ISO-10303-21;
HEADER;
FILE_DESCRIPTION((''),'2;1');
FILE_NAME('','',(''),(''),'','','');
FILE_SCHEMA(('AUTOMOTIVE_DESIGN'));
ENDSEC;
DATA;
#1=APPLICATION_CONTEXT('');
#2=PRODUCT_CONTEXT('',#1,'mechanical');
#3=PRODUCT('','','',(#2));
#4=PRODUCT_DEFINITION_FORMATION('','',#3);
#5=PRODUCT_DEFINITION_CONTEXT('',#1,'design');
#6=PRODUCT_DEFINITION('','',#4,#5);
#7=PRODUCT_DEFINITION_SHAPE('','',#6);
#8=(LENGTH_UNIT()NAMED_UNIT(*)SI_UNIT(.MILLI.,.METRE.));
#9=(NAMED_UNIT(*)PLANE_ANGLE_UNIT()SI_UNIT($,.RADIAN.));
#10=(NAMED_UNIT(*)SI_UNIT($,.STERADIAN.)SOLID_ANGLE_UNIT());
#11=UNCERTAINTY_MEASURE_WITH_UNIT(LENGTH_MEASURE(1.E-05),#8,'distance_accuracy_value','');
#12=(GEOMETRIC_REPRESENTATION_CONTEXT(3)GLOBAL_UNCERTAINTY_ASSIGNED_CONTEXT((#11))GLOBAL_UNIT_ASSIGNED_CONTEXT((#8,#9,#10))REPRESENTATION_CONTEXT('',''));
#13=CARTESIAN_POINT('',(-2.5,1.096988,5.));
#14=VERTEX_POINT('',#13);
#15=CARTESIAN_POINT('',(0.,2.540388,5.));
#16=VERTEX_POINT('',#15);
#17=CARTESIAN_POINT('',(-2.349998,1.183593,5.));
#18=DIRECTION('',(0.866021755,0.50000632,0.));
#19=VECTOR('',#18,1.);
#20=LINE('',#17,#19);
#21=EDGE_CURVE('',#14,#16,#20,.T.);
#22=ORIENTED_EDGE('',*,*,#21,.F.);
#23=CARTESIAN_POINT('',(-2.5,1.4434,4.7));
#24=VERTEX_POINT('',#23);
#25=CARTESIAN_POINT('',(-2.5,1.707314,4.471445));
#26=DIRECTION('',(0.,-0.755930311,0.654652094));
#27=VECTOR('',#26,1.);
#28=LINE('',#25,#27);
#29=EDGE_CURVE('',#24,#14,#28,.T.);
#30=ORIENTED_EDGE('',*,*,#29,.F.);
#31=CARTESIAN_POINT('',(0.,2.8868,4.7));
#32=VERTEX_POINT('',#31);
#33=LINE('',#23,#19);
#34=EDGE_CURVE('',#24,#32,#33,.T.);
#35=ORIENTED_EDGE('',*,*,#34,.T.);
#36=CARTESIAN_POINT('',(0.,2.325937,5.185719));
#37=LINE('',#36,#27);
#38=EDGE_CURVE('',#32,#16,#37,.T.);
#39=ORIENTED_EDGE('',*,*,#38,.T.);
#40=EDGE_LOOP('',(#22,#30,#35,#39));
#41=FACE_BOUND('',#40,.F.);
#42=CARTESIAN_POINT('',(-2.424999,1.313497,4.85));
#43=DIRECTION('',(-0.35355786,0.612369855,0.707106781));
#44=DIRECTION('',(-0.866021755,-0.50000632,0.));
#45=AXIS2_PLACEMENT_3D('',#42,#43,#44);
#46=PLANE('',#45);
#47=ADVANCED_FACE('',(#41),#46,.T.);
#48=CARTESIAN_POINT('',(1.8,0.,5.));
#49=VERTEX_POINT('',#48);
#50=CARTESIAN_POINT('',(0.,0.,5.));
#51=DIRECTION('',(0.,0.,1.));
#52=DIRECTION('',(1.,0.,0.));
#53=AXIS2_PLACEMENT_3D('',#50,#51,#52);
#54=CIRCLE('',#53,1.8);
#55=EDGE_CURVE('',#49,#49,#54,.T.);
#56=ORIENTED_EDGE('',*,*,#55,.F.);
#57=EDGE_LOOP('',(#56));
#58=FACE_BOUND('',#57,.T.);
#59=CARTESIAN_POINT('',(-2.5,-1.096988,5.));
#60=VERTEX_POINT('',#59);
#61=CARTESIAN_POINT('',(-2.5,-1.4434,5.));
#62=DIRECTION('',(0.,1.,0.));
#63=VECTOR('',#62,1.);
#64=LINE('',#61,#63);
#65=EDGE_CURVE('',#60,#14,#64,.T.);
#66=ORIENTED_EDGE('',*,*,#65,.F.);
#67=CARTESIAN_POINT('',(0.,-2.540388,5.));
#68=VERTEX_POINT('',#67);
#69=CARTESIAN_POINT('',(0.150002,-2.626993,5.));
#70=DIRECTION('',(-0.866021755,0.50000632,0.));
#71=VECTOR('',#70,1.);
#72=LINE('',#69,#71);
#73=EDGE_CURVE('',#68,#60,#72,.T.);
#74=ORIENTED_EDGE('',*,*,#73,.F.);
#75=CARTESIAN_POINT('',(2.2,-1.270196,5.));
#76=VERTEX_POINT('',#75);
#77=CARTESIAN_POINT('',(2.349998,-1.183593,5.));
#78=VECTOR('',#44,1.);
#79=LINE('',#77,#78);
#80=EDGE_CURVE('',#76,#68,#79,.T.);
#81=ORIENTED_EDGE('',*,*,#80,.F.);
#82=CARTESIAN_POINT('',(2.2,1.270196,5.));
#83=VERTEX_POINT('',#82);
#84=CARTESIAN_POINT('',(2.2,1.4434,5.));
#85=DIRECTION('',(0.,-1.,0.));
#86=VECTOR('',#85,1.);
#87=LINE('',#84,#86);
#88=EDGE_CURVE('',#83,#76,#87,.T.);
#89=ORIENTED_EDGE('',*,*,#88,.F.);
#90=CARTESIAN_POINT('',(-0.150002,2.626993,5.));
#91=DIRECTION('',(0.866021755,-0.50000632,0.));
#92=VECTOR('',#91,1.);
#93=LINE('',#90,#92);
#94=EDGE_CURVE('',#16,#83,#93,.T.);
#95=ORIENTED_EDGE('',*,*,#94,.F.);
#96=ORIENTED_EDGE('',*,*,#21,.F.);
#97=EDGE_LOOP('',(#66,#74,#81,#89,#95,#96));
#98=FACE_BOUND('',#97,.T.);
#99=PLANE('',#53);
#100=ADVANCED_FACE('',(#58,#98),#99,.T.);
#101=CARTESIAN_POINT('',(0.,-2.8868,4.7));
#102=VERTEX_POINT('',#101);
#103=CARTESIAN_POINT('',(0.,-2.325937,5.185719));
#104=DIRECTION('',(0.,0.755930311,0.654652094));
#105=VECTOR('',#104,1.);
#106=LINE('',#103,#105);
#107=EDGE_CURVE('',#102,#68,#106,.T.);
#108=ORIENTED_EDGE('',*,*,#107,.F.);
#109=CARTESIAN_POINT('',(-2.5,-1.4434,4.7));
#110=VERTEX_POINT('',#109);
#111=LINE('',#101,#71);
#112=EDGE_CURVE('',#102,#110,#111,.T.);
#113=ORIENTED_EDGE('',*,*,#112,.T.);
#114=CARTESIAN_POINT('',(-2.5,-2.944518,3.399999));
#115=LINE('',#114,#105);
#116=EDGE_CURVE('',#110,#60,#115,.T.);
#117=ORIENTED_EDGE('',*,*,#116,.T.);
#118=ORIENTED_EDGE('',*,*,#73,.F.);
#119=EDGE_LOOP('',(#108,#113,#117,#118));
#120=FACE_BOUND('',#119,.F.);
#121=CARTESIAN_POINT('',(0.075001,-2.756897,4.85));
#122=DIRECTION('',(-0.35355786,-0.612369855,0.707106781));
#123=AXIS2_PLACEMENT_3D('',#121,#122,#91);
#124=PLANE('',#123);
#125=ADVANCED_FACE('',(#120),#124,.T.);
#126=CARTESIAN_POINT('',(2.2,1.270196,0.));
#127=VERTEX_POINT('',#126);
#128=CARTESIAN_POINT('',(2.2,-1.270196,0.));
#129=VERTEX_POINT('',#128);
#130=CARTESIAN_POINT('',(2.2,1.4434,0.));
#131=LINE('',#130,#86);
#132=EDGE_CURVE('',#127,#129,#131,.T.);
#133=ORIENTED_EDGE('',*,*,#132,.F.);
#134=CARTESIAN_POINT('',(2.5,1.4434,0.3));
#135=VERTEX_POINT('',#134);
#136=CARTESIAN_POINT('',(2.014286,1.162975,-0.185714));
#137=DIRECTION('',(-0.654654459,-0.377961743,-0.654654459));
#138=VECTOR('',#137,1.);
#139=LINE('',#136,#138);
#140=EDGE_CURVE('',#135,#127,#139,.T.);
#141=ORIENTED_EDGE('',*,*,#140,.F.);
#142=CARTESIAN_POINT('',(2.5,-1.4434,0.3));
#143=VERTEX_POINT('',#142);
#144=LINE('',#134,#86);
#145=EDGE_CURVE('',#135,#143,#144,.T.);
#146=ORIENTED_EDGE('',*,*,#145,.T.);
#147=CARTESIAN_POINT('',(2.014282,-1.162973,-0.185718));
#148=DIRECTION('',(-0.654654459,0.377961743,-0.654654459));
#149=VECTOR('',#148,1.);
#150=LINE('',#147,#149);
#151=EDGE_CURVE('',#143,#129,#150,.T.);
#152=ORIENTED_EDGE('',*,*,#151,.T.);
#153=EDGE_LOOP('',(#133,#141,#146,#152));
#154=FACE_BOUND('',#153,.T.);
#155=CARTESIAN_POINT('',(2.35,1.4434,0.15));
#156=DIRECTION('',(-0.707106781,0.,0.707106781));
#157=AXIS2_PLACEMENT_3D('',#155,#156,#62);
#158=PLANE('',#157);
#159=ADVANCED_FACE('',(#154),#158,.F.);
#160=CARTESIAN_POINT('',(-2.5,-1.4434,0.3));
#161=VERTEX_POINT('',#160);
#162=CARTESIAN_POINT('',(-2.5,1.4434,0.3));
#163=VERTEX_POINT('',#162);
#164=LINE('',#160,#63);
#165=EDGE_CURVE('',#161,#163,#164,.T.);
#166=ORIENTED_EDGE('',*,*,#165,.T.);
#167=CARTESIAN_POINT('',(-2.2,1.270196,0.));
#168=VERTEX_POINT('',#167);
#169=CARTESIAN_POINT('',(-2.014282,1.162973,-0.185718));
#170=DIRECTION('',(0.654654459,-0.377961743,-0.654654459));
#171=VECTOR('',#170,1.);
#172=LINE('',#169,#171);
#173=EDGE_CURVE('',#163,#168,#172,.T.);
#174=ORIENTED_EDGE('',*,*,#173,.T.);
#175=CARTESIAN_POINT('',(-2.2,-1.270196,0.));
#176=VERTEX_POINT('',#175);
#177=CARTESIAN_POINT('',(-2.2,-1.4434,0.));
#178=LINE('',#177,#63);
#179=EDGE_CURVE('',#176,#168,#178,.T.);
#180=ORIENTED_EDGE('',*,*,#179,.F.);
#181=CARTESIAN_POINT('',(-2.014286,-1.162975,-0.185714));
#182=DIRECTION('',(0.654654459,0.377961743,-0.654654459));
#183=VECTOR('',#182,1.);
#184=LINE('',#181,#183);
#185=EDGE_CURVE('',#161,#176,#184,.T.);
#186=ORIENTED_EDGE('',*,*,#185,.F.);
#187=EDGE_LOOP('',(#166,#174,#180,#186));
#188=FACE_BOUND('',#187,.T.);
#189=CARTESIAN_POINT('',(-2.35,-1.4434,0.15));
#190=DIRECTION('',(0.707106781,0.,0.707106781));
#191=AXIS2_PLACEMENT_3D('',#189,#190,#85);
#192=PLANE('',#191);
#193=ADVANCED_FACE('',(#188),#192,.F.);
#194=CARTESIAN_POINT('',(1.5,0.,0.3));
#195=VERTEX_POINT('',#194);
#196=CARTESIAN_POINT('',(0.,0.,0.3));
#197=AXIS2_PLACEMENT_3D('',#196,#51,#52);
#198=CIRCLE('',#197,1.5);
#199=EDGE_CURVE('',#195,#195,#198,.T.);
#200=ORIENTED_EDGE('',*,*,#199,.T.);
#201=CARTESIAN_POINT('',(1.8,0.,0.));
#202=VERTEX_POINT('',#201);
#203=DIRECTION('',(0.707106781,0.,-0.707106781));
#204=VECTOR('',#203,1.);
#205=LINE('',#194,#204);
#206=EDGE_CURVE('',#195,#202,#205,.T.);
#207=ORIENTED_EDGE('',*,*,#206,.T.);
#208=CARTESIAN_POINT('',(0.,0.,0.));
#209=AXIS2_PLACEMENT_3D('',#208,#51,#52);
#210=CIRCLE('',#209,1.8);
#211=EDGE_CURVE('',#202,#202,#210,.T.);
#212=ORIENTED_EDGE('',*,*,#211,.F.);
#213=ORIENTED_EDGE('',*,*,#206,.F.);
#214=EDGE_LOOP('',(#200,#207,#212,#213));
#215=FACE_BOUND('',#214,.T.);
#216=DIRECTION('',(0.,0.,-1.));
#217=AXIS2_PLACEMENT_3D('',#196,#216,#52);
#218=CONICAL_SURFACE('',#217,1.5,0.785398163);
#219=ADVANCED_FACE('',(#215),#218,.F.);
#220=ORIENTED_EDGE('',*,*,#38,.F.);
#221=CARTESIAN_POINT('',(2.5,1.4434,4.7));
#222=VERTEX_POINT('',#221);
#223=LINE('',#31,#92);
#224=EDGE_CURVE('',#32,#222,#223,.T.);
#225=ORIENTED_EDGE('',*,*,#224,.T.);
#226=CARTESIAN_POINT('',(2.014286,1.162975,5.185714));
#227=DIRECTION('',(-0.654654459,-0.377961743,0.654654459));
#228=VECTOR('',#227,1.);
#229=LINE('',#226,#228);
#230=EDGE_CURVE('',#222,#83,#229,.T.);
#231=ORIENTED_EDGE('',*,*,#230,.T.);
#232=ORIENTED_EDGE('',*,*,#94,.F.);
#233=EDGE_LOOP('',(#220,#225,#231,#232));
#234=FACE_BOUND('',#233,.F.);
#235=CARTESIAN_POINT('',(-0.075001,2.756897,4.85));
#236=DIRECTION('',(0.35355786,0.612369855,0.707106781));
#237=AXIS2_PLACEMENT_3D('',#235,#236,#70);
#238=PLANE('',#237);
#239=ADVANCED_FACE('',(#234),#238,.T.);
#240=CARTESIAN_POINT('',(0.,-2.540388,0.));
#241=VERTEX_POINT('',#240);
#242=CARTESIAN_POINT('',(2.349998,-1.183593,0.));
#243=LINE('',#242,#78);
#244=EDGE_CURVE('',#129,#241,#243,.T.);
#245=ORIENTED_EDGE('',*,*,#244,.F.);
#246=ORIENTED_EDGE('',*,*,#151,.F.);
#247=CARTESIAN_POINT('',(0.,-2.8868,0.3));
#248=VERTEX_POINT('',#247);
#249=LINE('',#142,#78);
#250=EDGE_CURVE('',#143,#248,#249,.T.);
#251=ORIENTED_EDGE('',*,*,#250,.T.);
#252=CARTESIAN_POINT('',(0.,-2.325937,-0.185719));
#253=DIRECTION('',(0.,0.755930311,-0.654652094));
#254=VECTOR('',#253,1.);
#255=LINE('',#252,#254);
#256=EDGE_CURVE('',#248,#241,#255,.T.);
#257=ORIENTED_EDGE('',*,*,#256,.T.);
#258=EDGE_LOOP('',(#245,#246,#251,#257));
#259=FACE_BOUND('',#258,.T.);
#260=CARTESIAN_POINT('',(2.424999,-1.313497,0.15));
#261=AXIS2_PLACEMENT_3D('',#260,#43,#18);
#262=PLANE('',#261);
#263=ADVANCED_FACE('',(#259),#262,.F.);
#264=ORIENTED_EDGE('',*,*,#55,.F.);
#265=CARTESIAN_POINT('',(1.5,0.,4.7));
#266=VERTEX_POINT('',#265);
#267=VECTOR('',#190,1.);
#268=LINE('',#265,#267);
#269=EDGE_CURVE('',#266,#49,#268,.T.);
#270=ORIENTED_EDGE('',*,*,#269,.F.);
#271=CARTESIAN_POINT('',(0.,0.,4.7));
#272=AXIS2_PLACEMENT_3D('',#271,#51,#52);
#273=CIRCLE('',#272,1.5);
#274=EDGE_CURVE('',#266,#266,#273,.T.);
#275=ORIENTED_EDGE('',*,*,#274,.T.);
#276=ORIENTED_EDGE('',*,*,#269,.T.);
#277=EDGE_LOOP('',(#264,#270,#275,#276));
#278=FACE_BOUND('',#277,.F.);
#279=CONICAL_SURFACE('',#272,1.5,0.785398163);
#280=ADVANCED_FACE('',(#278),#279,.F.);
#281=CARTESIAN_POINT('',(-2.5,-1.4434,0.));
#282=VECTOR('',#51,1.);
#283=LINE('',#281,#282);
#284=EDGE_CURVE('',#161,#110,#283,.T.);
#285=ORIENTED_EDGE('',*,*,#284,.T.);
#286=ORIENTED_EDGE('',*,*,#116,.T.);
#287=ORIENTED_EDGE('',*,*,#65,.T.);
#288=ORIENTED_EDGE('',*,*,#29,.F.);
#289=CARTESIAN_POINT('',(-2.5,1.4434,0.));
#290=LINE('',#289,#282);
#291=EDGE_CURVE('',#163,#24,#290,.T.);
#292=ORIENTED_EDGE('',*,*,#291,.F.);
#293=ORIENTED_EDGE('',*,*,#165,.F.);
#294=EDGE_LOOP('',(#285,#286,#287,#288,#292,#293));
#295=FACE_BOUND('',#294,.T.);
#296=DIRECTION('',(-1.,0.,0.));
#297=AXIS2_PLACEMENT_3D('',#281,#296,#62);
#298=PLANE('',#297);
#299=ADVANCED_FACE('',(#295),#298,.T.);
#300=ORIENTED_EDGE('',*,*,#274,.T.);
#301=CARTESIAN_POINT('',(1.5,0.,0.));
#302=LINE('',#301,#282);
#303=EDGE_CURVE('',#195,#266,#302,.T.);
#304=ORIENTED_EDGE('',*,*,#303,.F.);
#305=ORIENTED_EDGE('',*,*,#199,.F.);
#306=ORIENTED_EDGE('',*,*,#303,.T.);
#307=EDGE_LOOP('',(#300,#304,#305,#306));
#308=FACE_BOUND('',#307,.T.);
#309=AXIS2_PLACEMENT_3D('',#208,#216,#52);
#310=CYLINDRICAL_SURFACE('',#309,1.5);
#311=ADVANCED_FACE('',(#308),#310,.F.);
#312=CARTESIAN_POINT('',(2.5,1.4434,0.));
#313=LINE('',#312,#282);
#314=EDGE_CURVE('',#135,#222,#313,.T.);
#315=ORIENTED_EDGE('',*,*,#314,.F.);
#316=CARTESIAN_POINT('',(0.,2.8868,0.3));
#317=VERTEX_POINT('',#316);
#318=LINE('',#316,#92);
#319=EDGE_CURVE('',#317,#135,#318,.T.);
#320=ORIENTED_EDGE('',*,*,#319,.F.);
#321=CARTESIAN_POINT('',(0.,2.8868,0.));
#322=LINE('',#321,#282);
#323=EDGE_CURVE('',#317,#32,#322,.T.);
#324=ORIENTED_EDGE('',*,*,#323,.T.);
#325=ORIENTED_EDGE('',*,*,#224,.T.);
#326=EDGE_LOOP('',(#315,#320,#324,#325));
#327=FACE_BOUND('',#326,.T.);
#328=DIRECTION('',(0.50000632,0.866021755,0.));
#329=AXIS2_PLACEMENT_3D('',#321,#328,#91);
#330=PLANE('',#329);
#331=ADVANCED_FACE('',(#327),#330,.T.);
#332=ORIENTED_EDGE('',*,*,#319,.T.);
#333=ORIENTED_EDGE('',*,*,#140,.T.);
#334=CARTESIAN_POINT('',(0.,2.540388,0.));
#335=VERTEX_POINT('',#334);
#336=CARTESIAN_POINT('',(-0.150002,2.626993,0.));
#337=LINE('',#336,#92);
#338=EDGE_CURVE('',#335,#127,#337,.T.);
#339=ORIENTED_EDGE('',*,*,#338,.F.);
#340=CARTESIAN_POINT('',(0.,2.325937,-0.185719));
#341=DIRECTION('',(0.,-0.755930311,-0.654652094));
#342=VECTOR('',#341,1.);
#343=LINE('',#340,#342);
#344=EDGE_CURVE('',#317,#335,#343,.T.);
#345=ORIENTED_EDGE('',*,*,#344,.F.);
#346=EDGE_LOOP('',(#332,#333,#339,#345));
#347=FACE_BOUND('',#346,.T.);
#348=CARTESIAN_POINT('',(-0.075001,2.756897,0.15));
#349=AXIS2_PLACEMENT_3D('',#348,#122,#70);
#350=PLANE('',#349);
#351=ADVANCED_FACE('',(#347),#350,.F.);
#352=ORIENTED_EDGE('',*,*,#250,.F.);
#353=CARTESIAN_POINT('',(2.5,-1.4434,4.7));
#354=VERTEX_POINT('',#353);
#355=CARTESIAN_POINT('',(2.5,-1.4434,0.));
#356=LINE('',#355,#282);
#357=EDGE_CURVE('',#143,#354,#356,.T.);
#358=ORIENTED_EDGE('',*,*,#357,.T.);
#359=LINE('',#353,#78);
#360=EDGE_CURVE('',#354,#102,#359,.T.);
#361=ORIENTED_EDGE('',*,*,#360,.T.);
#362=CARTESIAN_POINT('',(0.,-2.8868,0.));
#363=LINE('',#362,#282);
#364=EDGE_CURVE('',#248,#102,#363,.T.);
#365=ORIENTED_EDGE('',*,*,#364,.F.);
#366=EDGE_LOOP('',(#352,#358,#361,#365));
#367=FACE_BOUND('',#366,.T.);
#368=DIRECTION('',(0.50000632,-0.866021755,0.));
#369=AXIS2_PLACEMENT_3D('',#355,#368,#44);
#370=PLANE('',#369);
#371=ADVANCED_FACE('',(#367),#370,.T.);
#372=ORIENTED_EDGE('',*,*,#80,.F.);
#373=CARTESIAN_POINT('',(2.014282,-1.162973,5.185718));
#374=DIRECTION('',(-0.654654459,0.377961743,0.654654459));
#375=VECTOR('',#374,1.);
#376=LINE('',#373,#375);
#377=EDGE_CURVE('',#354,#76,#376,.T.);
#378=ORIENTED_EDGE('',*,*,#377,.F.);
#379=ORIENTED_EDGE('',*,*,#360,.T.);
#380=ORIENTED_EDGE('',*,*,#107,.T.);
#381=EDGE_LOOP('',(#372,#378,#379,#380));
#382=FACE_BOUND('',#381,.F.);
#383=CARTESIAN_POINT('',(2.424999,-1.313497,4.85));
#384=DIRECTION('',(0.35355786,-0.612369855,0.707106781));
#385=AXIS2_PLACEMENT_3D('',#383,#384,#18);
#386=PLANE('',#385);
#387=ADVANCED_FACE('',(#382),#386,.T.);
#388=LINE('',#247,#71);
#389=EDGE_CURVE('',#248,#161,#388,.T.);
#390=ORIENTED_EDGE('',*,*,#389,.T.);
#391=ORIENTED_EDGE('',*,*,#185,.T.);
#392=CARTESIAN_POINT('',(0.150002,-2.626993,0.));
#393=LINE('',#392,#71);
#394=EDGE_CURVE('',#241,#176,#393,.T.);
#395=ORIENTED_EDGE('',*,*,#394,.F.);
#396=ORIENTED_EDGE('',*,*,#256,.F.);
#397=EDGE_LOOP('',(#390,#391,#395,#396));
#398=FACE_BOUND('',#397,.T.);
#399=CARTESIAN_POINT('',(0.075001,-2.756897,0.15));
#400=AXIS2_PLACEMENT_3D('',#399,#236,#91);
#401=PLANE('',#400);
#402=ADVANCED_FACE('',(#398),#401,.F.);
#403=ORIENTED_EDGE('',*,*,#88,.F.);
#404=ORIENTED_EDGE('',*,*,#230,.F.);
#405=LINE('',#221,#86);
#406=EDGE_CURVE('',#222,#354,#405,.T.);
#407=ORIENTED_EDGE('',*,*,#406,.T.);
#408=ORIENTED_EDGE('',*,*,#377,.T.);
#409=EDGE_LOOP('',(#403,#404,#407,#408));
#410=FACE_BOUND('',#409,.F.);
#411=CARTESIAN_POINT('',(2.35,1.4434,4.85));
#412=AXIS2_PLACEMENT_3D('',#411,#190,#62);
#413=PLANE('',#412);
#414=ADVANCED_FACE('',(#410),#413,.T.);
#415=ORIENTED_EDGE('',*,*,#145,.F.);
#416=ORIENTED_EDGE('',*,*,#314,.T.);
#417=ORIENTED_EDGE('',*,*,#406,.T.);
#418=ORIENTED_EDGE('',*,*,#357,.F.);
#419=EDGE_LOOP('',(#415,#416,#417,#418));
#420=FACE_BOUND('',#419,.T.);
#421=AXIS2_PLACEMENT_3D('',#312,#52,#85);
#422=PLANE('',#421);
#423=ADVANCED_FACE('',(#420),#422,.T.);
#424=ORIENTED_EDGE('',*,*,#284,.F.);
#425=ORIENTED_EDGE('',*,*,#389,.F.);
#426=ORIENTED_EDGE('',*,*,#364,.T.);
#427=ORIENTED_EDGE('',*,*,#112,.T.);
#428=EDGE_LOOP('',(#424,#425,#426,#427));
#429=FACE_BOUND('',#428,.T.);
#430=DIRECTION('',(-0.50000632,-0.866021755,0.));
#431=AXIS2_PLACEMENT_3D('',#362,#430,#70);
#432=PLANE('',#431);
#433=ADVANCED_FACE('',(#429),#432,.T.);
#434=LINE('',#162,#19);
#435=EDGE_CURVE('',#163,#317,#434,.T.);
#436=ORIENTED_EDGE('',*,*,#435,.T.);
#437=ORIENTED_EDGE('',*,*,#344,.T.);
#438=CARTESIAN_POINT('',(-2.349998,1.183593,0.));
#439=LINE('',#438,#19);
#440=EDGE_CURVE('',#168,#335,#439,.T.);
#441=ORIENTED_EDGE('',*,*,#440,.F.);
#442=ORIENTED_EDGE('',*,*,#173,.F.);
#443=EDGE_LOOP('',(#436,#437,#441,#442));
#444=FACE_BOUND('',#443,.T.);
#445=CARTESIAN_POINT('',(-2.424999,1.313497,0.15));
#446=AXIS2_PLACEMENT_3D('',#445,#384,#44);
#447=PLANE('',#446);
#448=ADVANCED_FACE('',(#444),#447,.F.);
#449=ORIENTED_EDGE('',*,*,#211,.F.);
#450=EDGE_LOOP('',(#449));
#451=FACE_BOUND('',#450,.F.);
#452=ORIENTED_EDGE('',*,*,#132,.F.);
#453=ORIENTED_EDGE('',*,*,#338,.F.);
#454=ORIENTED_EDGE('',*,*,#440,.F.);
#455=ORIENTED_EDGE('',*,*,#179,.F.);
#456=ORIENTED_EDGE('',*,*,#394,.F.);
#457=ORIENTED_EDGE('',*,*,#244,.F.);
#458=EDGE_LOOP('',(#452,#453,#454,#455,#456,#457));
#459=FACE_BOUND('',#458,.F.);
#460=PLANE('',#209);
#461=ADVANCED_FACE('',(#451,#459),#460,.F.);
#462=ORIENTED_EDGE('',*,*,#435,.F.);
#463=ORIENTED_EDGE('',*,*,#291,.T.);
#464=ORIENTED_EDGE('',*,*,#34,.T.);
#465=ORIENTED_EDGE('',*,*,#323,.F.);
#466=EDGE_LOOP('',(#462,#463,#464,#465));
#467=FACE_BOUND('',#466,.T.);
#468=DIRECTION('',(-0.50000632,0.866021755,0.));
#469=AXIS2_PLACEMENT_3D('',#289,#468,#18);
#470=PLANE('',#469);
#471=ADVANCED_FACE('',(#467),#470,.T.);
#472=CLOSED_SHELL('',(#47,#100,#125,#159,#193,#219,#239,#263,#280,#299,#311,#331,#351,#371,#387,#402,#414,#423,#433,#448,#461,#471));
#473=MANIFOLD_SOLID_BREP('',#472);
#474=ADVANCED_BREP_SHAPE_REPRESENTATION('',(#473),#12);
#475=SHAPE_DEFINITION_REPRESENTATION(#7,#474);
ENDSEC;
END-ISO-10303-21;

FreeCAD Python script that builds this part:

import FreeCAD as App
import Part
import Sketcher
from FreeCAD import Vector
Q = App.Units.Quantity


def edges_at(feature, points):
    """Names of the edges that pass closest to the given points."""
    edges = feature.Shape.Edges
    near = lambda p: min(range(len(edges)), key=lambda i: edges[i].distToShape(Part.Vertex(*p))[0])
    return sorted({f"Edge{near(p) + 1}" for p in points})


def add_polygon(sketch, points):
    """Adds a closed chain of lines whose ends are joined by coincident constraints."""
    first, n = sketch.GeometryCount, len(points)
    for a, b in zip(points, points[1:] + points[:1]):
        sketch.addGeometry(Part.LineSegment(App.Vector(*a, 0), App.Vector(*b, 0)), False)
    for i in range(n):
        sketch.addConstraint(Sketcher.Constraint("Coincident", first + i, 2, first + (i + 1) % n, 1))

doc = App.newDocument("Part")
params = doc.addObject("Spreadsheet::Sheet", "Params")
for row, (alias, value) in enumerate([
    ("sketch1_diameter", "3 mm"),
    ("pad1_length", "5 mm"),
    ("chamfer_size", "0.3 mm"),
], start=1):
    params.set(f"A{row}", alias)
    params.set(f"B{row}", "=" + value)
    params.setAlias(f"B{row}", alias)

body = doc.addObject("PartDesign::Body", "Body")

sketch1 = doc.addObject("Sketcher::SketchObject", "Sketch")
body.addObject(sketch1)
sketch1.AttachmentSupport = (doc.XY_Plane, [""])
sketch1.MapMode = "FlatFace"
add_polygon(sketch1, [(2.5, 1.4), (0, 2.9), (-2.5, 1.4), (-2.5, -1.4), (0, -2.9), (2.5, -1.4)])
sketch1.addGeometry(Part.Circle(Vector(0, 0, 0), Vector(0, 0, 1), 1.5), False)
sketch1.addConstraint([
    Sketcher.Constraint("Vertical", 2),
    Sketcher.Constraint("Vertical", 5),
    Sketcher.Constraint("Coincident", 6, 3, -1, 1),
    Sketcher.Constraint("Symmetric", 0, 2, 3, 2, -1, 1),
    Sketcher.Constraint("Symmetric", 1, 2, 4, 2, -1, 1),
    Sketcher.Constraint("PointOnObject", 0, 2, -2),
    Sketcher.Constraint("Parallel", 0, 3),
    Sketcher.Constraint("Horizontal", 2, 2, 4, 2),
    Sketcher.Constraint("Diameter", 6, 3.0),
    Sketcher.Constraint("DistanceX", 2, 2, 4, 2, 5.0),
    Sketcher.Constraint("Angle", 0, Q("149.9996 deg")),
    Sketcher.Constraint("DistanceY", 2, 2, 2, 1, 2.8868),
])
sketch1.setExpression("Constraints[14]", "Params.sketch1_diameter")
pad1 = doc.addObject("PartDesign::Pad", "Pad")
body.addObject(pad1)
pad1.Profile = sketch1
pad1.setExpression("Length", "Params.pad1_length")
doc.recompute()

chamfer = doc.addObject("PartDesign::Chamfer", "Chamfer")
body.addObject(chamfer)
chamfer.Base = (pad1, edges_at(pad1, [
    (1.25, -2.165, 5),
    (-1.25, -2.165, 5),
    (2.5, 0, 5),
    (1.25, 2.165, 5),
    (-1.25, 2.165, 5),
    (1.25, -2.165, 0),
    (2.5, 0, 0),
    (-1.25, -2.165, 0),
    (1.25, 2.165, 0),
    (-1.25, 2.165, 0),
    (-2.5, 0, 0),
    (-1.5, 0, 5),
    (-1.5, 0, 0),
]))
chamfer.setExpression("Size", "Params.chamfer_size")

doc.recompute()
